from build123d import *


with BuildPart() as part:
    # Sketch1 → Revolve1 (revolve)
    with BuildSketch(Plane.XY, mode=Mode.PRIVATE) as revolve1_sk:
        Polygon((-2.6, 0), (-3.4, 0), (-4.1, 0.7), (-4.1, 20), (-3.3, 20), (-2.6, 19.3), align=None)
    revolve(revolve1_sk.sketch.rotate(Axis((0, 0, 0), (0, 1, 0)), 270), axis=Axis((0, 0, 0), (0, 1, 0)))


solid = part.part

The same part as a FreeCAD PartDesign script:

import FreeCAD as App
import Part
import Sketcher
from FreeCAD import Vector
Q = App.Units.Quantity

doc = App.newDocument("Part")
params = doc.addObject("Spreadsheet::Sheet", "Params")
for row, (alias, value) in enumerate([
    ("sketch1_width", "0.8 mm"),
    ("sketch1_height", "19.3 mm"),
    ("revolution_angle", "360 deg"),
], start=1):
    params.set(f"A{row}", alias)
    params.set(f"B{row}", "=" + value)
    params.setAlias(f"B{row}", alias)

body = doc.addObject("PartDesign::Body", "Body")

sketch1 = body.newObject("Sketcher::SketchObject", "Sketch")
sketch1.AttachmentSupport = (doc.getObject("XY_Plane"), [""])
sketch1.MapMode = "FlatFace"
sketch1.addGeometry(Part.LineSegment(Vector(-3.4, 0, 0), Vector(-2.6, 0, 0)), False)
sketch1.addGeometry(Part.LineSegment(Vector(-2.6, 0, 0), Vector(-2.6, 19.3, 0)), False)
sketch1.addGeometry(Part.LineSegment(Vector(-2.6, 19.3, 0), Vector(-3.3, 20, 0)), False)
sketch1.addGeometry(Part.LineSegment(Vector(-3.3, 20, 0), Vector(-4.1, 20, 0)), False)
sketch1.addGeometry(Part.LineSegment(Vector(-4.1, 20, 0), Vector(-4.1, 0.7, 0)), False)
sketch1.addGeometry(Part.LineSegment(Vector(-4.1, 0.7, 0), Vector(-3.4, 0, 0)), False)
sketch1.addConstraint(Sketcher.Constraint("Coincident", 0, 2, 1, 1))
sketch1.addConstraint(Sketcher.Constraint("Coincident", 1, 2, 2, 1))
sketch1.addConstraint(Sketcher.Constraint("Coincident", 2, 2, 3, 1))
sketch1.addConstraint(Sketcher.Constraint("Coincident", 3, 2, 4, 1))
sketch1.addConstraint(Sketcher.Constraint("Coincident", 4, 2, 5, 1))
sketch1.addConstraint(Sketcher.Constraint("Coincident", 5, 2, 0, 1))
sketch1.addConstraint(Sketcher.Constraint("Horizontal", 0))
sketch1.addConstraint(Sketcher.Constraint("Vertical", 1))
sketch1.addConstraint(Sketcher.Constraint("Horizontal", 3))
sketch1.addConstraint(Sketcher.Constraint("Vertical", 4))
sketch1.addConstraint(Sketcher.Constraint("PointOnObject", 0, 2, -1))
sketch1.addConstraint(Sketcher.Constraint("Parallel", 2, 5))
sketch1.addConstraint(Sketcher.Constraint("Equal", 0, 3))
sketch1.addConstraint(Sketcher.Constraint("Angle", 2, Q("135 deg")))
sketch1.addConstraint(Sketcher.Constraint("DistanceX", 0, 1, 0, 2, 0.8))
sketch1.addConstraint(Sketcher.Constraint("DistanceY", 1, 1, 1, 2, 19.3))
sketch1.addConstraint(Sketcher.Constraint("DistanceY", -1, 1, 2, 2, 20.0))
sketch1.addConstraint(Sketcher.Constraint("DistanceX", 0, 2, -1, 1, 2.6))
sketch1.setExpression("Constraints[14]", "Params.sketch1_width")
sketch1.setExpression("Constraints[15]", "Params.sketch1_height")
revolution = body.newObject("PartDesign::Revolution", "Revolution")
revolution.Profile = sketch1
revolution.ReferenceAxis = (sketch1, ["V_Axis"])
revolution.setExpression("Angle", "Params.revolution_angle")

doc.recompute()
